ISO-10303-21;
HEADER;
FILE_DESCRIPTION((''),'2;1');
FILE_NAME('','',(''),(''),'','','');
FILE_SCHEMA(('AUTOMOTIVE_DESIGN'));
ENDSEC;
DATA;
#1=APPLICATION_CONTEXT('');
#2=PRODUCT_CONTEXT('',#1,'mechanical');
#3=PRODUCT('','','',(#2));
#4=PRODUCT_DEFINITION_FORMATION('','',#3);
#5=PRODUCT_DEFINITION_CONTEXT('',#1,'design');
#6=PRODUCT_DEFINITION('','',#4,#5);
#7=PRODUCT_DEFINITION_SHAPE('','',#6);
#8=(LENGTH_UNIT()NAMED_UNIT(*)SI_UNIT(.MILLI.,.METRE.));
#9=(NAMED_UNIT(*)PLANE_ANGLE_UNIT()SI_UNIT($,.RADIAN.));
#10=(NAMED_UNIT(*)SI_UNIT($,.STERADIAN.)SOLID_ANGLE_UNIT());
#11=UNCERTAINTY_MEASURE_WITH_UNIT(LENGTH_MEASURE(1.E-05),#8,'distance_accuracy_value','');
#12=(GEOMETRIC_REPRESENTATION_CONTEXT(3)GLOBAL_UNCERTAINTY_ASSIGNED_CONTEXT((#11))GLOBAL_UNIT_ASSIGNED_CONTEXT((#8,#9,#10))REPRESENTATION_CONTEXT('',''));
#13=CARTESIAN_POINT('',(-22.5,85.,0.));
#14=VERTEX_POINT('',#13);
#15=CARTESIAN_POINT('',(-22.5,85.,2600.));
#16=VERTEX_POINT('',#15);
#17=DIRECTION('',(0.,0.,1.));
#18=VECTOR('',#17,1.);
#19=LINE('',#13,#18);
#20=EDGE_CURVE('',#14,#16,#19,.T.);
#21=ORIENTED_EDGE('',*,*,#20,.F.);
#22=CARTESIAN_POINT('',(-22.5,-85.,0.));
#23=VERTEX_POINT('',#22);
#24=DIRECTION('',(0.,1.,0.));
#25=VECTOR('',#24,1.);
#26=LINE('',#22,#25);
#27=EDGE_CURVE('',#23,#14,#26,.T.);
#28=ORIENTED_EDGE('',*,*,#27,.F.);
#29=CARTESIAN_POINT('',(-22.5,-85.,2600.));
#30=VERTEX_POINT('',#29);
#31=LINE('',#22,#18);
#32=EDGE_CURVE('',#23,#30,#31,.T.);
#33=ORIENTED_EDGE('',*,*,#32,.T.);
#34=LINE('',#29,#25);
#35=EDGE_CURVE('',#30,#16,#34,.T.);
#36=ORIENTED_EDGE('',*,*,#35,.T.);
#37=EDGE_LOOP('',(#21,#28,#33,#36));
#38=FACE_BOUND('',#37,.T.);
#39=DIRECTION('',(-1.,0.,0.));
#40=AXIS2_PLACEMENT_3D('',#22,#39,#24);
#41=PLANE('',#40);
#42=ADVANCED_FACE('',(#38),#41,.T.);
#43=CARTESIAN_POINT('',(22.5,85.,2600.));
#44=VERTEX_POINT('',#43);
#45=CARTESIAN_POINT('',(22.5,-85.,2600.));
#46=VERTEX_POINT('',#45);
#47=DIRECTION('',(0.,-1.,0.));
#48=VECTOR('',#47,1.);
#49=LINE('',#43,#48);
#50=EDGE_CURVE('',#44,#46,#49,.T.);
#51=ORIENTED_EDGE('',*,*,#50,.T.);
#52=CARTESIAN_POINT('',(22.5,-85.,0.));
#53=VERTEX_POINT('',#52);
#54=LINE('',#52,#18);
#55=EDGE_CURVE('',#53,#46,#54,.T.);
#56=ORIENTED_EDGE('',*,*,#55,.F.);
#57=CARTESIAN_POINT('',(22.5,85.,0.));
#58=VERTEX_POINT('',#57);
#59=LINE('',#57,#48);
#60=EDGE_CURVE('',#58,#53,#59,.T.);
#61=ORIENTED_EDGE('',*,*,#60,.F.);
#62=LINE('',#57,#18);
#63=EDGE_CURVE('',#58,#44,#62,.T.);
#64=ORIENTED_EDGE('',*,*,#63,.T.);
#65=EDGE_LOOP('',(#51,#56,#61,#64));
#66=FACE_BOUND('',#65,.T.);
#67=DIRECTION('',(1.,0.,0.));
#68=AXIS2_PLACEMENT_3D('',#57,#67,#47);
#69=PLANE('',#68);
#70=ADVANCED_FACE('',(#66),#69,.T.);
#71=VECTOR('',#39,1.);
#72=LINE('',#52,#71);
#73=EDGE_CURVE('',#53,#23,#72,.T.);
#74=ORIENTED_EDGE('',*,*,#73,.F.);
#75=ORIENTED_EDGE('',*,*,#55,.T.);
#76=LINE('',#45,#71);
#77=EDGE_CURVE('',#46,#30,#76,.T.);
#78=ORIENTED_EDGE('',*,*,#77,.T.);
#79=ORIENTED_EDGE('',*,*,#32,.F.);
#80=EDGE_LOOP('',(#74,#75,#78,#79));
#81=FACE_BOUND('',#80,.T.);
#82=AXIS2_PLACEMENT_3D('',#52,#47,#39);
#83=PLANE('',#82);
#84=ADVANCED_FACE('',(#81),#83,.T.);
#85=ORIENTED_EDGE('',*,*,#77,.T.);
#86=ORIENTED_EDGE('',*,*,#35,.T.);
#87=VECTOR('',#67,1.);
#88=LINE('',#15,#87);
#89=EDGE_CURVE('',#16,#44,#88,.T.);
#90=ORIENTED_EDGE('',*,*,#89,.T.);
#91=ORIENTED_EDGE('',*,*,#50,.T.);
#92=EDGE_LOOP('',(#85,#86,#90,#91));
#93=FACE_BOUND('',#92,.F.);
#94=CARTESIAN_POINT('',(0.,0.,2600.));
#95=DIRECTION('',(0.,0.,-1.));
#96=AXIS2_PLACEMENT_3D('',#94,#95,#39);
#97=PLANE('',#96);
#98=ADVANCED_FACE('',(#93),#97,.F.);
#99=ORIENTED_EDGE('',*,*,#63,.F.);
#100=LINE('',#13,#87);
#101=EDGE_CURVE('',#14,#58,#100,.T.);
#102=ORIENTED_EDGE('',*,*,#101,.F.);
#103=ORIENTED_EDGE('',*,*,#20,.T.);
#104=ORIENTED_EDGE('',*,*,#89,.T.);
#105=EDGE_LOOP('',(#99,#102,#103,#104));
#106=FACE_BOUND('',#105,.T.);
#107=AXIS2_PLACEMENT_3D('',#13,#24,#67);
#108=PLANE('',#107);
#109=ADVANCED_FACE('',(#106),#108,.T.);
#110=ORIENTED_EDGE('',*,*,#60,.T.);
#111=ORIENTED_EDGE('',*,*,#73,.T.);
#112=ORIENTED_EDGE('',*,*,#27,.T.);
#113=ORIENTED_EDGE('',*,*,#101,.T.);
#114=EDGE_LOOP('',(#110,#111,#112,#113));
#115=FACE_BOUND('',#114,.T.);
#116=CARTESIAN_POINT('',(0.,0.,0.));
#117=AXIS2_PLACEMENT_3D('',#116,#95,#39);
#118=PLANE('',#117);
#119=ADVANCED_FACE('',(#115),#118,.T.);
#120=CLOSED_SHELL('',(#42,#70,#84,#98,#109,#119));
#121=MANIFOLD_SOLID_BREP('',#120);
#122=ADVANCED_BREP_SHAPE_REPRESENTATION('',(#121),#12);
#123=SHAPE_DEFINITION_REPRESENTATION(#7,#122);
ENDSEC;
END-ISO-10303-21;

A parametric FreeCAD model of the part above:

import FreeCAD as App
import Part
import Sketcher

V = App.Vector


def add_polygon(sketch, points):
    """Adds a closed chain of lines whose ends are joined by coincident constraints."""
    first, n = sketch.GeometryCount, len(points)
    for a, b in zip(points, points[1:] + points[:1]):
        sketch.addGeometry(Part.LineSegment(App.Vector(*a, 0), App.Vector(*b, 0)), False)
    for i in range(n):
        sketch.addConstraint(Sketcher.Constraint("Coincident", first + i, 2, first + (i + 1) % n, 1))

doc = App.newDocument("Part")
body = doc.addObject("PartDesign::Body", "Body")

# Sketch on XY plane
sketch1 = body.newObject("Sketcher::SketchObject", "Sketch")
sketch1.AttachmentSupport = (doc.getObject("XY_Plane"), [""])
sketch1.MapMode = "FlatFace"
add_polygon(sketch1, [(22.5, 85), (22.5, -85), (-22.5, -85), (-22.5, 85)])  # lines 0-3
sketch1.addConstraint([
    Sketcher.Constraint("Vertical", 0),
    Sketcher.Constraint("Horizontal", 1),
    Sketcher.Constraint("Vertical", 2),
    Sketcher.Constraint("Horizontal", 3),
    Sketcher.Constraint("Symmetric", 0, 2, 2, 2, -1, 1),
    Sketcher.Constraint("DistanceX", 1, 2, 1, 1, 45.0),
    Sketcher.Constraint("DistanceY", 0, 2, 0, 1, 170.0),
])
pad1 = body.newObject("PartDesign::Pad", "Pad")
pad1.Profile = sketch1
pad1.Length = 2600

doc.recompute()
